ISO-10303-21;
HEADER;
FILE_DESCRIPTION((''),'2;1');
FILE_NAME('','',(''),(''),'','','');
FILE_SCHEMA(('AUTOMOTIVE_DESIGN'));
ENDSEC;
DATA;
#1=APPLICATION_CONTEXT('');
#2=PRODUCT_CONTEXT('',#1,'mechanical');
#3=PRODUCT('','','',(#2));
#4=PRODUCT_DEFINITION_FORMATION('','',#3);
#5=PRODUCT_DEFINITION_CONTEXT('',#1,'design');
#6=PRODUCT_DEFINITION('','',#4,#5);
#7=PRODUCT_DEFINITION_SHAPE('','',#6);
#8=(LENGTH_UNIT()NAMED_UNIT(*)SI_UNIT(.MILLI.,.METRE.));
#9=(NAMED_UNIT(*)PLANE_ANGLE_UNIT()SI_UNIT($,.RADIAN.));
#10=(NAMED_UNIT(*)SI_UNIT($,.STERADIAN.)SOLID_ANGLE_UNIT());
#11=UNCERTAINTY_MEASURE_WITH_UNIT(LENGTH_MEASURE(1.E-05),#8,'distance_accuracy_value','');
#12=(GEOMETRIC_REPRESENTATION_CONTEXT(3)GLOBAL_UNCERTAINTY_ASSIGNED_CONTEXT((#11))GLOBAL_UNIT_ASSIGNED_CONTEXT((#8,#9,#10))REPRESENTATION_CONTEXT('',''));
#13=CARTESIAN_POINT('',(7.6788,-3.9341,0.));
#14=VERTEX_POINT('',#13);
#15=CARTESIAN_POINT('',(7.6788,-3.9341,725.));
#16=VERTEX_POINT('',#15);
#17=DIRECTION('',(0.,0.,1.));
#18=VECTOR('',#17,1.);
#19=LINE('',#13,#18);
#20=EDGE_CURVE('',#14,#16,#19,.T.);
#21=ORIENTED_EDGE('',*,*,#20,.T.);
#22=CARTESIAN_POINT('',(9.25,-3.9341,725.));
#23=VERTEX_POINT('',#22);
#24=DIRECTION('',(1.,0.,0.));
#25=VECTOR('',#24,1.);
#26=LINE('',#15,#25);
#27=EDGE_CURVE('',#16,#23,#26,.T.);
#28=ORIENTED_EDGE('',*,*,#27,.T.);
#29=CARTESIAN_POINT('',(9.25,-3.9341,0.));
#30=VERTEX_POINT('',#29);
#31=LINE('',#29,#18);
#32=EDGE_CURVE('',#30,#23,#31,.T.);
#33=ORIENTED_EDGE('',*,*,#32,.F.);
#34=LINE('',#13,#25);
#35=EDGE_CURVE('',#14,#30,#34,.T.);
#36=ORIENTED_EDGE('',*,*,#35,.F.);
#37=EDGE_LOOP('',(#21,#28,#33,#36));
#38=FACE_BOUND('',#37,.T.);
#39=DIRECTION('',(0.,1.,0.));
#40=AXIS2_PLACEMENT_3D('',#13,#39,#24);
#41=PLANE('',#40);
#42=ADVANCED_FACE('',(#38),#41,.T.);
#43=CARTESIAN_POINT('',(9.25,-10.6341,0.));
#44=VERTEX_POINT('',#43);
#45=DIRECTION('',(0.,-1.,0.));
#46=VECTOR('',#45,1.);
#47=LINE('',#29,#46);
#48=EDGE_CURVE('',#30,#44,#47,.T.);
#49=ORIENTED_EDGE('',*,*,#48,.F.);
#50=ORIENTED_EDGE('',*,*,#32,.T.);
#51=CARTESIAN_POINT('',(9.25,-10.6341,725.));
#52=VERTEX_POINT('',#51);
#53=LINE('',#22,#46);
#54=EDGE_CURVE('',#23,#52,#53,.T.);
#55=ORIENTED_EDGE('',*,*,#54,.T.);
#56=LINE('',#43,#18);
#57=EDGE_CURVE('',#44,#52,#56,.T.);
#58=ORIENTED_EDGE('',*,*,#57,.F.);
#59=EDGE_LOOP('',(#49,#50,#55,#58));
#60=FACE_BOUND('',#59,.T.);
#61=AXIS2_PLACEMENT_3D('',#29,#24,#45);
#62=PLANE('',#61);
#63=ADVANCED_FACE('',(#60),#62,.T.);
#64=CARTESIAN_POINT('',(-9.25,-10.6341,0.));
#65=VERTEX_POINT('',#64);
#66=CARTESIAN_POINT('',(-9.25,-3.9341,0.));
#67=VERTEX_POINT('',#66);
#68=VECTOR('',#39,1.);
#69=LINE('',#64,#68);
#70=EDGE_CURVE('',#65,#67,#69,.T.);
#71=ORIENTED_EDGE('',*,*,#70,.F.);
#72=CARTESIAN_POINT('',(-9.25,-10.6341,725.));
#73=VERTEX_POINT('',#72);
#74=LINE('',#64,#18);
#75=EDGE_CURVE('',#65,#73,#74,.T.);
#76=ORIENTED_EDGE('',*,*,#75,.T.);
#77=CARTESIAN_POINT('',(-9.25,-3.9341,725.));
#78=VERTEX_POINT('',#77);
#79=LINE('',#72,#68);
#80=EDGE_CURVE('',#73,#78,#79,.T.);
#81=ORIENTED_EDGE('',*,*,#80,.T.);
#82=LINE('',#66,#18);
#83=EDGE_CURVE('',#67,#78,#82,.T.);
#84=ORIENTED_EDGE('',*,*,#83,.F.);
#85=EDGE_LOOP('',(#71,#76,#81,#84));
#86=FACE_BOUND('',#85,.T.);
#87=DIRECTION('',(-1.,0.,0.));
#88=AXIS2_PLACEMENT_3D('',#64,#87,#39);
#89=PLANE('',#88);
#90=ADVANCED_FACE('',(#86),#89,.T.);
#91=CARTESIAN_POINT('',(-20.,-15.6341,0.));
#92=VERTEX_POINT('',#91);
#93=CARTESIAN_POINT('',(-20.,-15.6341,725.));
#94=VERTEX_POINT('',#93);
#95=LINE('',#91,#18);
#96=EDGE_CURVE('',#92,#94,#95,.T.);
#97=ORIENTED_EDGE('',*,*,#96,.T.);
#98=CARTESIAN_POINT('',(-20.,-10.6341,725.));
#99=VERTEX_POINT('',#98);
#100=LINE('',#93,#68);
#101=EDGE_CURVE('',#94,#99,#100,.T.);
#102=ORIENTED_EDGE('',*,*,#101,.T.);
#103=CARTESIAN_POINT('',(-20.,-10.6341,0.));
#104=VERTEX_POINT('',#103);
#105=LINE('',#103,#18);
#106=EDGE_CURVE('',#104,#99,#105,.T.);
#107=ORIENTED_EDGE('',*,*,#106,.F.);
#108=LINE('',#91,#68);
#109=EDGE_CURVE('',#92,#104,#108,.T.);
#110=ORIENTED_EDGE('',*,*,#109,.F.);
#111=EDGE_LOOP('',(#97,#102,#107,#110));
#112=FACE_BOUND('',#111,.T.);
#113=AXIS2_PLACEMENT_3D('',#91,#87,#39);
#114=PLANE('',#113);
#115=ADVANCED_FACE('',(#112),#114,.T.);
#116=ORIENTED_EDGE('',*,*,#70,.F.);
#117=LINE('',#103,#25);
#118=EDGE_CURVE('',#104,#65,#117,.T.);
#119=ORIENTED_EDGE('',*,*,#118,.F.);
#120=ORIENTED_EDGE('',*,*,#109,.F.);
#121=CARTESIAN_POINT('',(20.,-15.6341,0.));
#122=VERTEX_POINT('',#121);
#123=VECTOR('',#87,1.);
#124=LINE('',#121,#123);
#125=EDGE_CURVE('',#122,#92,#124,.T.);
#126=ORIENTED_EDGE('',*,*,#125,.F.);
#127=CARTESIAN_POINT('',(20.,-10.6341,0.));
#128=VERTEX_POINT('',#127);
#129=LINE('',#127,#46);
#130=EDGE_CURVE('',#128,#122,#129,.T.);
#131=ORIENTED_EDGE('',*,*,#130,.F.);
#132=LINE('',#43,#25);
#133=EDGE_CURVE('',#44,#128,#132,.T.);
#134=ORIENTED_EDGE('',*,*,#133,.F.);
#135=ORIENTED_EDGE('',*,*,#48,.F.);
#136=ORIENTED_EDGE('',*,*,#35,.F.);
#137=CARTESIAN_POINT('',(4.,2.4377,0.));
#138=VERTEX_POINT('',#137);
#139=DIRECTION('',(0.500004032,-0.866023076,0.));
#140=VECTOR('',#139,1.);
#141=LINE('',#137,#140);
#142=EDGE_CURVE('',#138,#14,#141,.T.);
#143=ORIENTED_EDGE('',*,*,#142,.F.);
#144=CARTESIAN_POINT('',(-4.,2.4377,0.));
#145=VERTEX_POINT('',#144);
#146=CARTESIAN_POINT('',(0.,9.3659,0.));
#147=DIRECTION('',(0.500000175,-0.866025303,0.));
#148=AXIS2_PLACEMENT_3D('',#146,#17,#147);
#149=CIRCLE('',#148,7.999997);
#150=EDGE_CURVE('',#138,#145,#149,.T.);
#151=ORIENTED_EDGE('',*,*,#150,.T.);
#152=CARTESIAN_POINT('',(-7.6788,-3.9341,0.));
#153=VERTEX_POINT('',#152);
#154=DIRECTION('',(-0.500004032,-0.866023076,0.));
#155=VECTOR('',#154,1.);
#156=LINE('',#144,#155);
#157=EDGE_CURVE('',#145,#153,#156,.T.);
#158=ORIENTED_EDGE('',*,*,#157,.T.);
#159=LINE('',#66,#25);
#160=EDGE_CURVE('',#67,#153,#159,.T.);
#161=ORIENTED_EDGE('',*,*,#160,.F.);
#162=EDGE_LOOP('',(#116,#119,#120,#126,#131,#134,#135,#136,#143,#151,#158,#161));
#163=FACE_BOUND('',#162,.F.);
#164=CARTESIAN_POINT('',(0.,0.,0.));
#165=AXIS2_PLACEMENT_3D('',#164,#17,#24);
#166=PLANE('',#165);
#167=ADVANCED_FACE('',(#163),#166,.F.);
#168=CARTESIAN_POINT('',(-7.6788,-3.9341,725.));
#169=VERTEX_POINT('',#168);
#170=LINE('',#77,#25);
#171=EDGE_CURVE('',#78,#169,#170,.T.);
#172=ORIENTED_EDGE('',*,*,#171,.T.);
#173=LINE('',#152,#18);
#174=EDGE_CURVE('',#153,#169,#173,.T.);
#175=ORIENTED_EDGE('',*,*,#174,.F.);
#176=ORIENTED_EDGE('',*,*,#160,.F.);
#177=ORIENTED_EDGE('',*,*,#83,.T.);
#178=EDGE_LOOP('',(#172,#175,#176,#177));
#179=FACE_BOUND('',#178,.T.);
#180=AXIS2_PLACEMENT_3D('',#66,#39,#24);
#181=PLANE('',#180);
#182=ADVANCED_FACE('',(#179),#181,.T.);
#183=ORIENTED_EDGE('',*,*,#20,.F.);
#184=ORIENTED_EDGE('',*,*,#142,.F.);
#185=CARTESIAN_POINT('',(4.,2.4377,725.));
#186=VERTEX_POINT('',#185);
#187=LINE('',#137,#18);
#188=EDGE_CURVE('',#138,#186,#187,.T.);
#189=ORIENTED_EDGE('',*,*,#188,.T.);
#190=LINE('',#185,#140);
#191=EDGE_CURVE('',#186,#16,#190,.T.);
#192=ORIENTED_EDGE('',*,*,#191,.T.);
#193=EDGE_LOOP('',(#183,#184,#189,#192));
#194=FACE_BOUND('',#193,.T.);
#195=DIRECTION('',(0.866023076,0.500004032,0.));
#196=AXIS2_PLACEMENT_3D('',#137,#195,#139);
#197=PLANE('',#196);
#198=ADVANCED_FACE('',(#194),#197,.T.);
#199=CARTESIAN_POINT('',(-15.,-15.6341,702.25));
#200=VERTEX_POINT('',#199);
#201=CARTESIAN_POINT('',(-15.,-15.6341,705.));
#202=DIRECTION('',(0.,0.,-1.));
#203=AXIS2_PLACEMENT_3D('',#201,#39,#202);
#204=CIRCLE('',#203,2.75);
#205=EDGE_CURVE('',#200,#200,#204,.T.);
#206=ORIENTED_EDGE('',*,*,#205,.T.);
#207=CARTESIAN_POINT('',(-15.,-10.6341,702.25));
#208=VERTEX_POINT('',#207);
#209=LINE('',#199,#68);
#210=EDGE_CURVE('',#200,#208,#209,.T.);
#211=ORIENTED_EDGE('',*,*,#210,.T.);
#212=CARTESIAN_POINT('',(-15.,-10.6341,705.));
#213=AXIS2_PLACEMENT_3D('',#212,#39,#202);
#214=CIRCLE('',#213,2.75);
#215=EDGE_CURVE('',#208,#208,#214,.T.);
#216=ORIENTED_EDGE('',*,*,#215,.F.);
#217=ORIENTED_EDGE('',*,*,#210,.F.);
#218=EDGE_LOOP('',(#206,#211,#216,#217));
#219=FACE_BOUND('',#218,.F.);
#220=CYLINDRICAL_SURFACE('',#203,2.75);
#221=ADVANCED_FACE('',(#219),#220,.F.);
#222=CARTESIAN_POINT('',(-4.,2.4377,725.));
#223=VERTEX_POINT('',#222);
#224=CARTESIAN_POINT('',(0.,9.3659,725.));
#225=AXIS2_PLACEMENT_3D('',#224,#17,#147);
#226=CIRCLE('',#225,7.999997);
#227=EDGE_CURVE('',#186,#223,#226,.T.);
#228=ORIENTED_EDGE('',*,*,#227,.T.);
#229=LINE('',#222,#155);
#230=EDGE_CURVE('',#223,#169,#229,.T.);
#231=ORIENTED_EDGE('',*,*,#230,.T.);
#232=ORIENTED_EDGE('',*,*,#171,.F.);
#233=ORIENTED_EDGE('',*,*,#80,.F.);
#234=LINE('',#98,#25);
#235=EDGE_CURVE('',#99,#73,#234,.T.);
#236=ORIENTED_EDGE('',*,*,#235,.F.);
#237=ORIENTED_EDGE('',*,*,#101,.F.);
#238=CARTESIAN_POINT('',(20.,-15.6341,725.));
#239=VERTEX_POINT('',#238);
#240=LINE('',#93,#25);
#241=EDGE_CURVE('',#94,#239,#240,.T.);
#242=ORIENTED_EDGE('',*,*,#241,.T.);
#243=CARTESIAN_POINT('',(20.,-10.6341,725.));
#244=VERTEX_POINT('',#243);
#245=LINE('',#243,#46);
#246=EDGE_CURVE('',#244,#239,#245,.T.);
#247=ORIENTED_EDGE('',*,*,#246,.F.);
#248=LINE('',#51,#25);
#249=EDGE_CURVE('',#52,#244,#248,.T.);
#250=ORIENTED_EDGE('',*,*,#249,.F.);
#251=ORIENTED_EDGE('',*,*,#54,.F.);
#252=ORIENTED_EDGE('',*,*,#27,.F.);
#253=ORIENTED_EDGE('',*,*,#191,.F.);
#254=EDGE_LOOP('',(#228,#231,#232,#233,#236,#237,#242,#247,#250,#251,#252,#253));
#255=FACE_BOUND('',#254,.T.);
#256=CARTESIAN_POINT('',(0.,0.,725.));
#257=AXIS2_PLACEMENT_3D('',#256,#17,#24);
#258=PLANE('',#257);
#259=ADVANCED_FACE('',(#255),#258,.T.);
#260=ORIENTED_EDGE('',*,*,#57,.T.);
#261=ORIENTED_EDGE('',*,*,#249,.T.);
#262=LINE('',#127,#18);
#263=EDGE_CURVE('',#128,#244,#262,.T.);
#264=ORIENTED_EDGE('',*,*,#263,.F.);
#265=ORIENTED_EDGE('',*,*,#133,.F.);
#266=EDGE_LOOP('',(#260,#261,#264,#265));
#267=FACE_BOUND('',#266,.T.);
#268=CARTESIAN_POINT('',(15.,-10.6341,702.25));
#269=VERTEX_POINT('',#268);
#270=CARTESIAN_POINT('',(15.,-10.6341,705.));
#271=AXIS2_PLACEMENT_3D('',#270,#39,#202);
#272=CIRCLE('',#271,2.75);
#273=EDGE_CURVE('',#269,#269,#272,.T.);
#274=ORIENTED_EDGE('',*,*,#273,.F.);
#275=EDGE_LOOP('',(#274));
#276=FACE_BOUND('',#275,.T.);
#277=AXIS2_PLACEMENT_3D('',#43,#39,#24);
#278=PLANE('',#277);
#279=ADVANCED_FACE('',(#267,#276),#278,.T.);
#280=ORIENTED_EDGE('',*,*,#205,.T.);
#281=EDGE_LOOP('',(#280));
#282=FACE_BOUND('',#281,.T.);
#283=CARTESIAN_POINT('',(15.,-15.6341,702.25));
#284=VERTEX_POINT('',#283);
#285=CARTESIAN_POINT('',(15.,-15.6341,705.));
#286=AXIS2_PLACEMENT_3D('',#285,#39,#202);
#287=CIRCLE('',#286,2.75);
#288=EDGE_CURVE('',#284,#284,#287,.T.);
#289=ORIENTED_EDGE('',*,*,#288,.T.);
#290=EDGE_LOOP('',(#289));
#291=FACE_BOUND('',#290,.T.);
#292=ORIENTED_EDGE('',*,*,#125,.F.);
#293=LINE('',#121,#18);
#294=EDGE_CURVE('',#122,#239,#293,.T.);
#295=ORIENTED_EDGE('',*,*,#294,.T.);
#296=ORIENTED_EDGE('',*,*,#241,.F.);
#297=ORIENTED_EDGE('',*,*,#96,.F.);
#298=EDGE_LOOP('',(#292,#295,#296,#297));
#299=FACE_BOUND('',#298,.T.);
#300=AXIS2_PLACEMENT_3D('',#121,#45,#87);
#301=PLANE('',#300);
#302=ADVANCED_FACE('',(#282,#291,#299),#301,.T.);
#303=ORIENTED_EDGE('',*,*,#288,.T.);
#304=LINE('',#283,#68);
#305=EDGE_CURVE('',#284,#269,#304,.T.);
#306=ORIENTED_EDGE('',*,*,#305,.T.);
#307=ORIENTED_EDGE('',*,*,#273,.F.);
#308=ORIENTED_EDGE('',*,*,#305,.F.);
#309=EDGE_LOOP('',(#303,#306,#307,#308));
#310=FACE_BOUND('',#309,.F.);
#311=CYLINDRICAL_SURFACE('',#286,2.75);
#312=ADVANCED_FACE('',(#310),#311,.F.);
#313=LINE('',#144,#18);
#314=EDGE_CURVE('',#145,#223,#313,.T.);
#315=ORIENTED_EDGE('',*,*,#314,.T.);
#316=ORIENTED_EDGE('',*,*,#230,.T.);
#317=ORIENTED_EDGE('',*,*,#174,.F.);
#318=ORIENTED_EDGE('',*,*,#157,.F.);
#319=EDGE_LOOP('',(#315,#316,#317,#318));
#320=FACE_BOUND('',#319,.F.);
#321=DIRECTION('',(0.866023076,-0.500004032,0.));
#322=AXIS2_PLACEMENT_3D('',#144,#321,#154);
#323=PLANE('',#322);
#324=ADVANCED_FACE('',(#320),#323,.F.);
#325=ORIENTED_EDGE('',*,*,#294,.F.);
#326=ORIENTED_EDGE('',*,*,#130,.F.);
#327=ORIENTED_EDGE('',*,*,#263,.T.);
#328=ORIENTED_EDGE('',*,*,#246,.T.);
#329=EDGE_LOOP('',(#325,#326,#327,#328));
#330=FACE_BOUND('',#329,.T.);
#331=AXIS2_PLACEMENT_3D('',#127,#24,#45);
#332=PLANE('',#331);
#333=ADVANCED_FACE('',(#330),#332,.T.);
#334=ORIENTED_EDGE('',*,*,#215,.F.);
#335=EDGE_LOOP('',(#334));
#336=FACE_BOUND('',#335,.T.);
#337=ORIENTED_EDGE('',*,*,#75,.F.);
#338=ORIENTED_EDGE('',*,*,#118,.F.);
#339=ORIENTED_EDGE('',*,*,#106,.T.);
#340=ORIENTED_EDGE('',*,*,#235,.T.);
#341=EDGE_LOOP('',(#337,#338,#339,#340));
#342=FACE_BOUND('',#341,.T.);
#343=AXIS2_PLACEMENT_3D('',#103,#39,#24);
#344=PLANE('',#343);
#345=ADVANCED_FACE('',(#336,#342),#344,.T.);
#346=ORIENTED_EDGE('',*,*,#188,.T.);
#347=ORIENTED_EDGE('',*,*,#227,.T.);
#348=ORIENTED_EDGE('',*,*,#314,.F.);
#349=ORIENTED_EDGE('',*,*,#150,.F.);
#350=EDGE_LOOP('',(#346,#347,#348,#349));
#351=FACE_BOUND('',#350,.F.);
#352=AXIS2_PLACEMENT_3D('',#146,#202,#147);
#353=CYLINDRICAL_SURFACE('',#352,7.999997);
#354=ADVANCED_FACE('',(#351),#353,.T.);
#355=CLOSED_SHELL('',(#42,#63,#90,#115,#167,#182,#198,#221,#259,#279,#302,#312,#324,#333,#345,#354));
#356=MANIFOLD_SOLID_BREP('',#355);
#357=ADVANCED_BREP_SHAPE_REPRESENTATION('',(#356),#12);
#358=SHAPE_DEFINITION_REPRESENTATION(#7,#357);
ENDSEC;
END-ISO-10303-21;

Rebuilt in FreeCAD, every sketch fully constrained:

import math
import FreeCAD as App
import Part
import Sketcher
Q = App.Units.Quantity

doc = App.newDocument("Part")
body = doc.addObject("PartDesign::Body", "Body")

sketch1 = doc.addObject("Sketcher::SketchObject", "Sketch")
body.addObject(sketch1)
sketch1.AttachmentSupport = (doc.XY_Plane, [""])
sketch1.MapMode = "FlatFace"
sketch1.addGeometry([
    Part.LineSegment(App.Vector(7.7, -3.9, 0), App.Vector(4, 2.4, 0)),
    Part.ArcOfCircle(Part.Circle(App.Vector(0, 9.4, 0), App.Vector(0, 0, 1), 8), math.radians(-60), math.radians(240)),
    Part.LineSegment(App.Vector(-4, 2.4, 0), App.Vector(-7.7, -3.9, 0)),
    Part.LineSegment(App.Vector(-7.7, -3.9, 0), App.Vector(-9.2, -3.9, 0)),
    Part.LineSegment(App.Vector(-9.2, -3.9, 0), App.Vector(-9.2, -10.6, 0)),
    Part.LineSegment(App.Vector(-9.2, -10.6, 0), App.Vector(-20, -10.6, 0)),
    Part.LineSegment(App.Vector(-20, -10.6, 0), App.Vector(-20, -15.6, 0)),
    Part.LineSegment(App.Vector(-20, -15.6, 0), App.Vector(20, -15.6, 0)),
    Part.LineSegment(App.Vector(20, -15.6, 0), App.Vector(20, -10.6, 0)),
    Part.LineSegment(App.Vector(20, -10.6, 0), App.Vector(9.2, -10.6, 0)),
    Part.LineSegment(App.Vector(9.2, -10.6, 0), App.Vector(9.2, -3.9, 0)),
    Part.LineSegment(App.Vector(9.2, -3.9, 0), App.Vector(7.7, -3.9, 0)),
], False)
sketch1.addConstraint([
    Sketcher.Constraint("Coincident", 0, 2, 1, 1),
    Sketcher.Constraint("Coincident", 1, 2, 2, 1),
    Sketcher.Constraint("Coincident", 2, 2, 3, 1),
    Sketcher.Constraint("Coincident", 3, 2, 4, 1),
    Sketcher.Constraint("Coincident", 4, 2, 5, 1),
    Sketcher.Constraint("Coincident", 5, 2, 6, 1),
    Sketcher.Constraint("Coincident", 6, 2, 7, 1),
    Sketcher.Constraint("Coincident", 7, 2, 8, 1),
    Sketcher.Constraint("Coincident", 8, 2, 9, 1),
    Sketcher.Constraint("Coincident", 9, 2, 10, 1),
    Sketcher.Constraint("Coincident", 10, 2, 11, 1),
    Sketcher.Constraint("Coincident", 11, 2, 0, 1),
    Sketcher.Constraint("Horizontal", 3),
    Sketcher.Constraint("Vertical", 4),
    Sketcher.Constraint("Horizontal", 5),
    Sketcher.Constraint("Vertical", 6),
    Sketcher.Constraint("Horizontal", 7),
    Sketcher.Constraint("Vertical", 8),
    Sketcher.Constraint("Horizontal", 9),
    Sketcher.Constraint("Vertical", 10),
    Sketcher.Constraint("Horizontal", 11),
    Sketcher.Constraint("Symmetric", 0, 2, 1, 2, -2),
    Sketcher.Constraint("Symmetric", 5, 2, 8, 2, -2),
    Sketcher.Constraint("Symmetric", 3, 2, 10, 2, -2),
    Sketcher.Constraint("Equal", 3, 11),
    Sketcher.Constraint("Radius", 1, 8.0),
    Sketcher.Constraint("DistanceX", 7, 1, 7, 2, 40.0),
    Sketcher.Constraint("DistanceY", 6, 2, 6, 1, 5.0),
    Sketcher.Constraint("DistanceX", 1, 2, 0, 2, 8.0),
    Sketcher.Constraint("DistanceY", 6, 2, 3, 2, 11.7),
    Sketcher.Constraint("DistanceX", 4, 2, 9, 2, 18.5),
    Sketcher.Constraint("Angle", 0, Q("120.0003 deg")),
    Sketcher.Constraint("DistanceY", 4, 2, 1, 3, 20.0),
    Sketcher.Constraint("DistanceY", -1, 1, 1, 3, 9.366),
])
pad1 = doc.addObject("PartDesign::Pad", "Pad")
body.addObject(pad1)
pad1.Profile = sketch1
pad1.Length = 725

sketch2 = doc.addObject("Sketcher::SketchObject", "Sketch001")
body.addObject(sketch2)
sketch2.AttachmentSupport = (doc.XZ_Plane, [""])
sketch2.MapMode = "FlatFace"
sketch2.AttachmentOffset = App.Placement(App.Vector(0, 0, 15.6341), App.Rotation())
sketch2.addGeometry([
    Part.Circle(App.Vector(-15, 705, 0), App.Vector(0, 0, 1), 2.8),
    Part.Circle(App.Vector(15, 705, 0), App.Vector(0, 0, 1), 2.8),
], False)
sketch2.addConstraint([
    Sketcher.Constraint("Equal", 0, 1),
    Sketcher.Constraint("Symmetric", 0, 3, 1, 3, -2),
    Sketcher.Constraint("Diameter", 0, 5.5),
    Sketcher.Constraint("DistanceX", 0, 3, -1, 1, 15.0),
    Sketcher.Constraint("DistanceY", -1, 1, 0, 3, 705.0),
])
doc.recompute()
hole = doc.addObject("PartDesign::Hole", "Hole")
body.addObject(hole)
hole.Profile = sketch2
hole.ThreadType = "None"
hole.Diameter = 5.5
hole.DepthType = "Dimension"
hole.Depth = 8
hole.DrillPoint = "Angled"
hole.DrillPointAngle = 118

doc.recompute()
